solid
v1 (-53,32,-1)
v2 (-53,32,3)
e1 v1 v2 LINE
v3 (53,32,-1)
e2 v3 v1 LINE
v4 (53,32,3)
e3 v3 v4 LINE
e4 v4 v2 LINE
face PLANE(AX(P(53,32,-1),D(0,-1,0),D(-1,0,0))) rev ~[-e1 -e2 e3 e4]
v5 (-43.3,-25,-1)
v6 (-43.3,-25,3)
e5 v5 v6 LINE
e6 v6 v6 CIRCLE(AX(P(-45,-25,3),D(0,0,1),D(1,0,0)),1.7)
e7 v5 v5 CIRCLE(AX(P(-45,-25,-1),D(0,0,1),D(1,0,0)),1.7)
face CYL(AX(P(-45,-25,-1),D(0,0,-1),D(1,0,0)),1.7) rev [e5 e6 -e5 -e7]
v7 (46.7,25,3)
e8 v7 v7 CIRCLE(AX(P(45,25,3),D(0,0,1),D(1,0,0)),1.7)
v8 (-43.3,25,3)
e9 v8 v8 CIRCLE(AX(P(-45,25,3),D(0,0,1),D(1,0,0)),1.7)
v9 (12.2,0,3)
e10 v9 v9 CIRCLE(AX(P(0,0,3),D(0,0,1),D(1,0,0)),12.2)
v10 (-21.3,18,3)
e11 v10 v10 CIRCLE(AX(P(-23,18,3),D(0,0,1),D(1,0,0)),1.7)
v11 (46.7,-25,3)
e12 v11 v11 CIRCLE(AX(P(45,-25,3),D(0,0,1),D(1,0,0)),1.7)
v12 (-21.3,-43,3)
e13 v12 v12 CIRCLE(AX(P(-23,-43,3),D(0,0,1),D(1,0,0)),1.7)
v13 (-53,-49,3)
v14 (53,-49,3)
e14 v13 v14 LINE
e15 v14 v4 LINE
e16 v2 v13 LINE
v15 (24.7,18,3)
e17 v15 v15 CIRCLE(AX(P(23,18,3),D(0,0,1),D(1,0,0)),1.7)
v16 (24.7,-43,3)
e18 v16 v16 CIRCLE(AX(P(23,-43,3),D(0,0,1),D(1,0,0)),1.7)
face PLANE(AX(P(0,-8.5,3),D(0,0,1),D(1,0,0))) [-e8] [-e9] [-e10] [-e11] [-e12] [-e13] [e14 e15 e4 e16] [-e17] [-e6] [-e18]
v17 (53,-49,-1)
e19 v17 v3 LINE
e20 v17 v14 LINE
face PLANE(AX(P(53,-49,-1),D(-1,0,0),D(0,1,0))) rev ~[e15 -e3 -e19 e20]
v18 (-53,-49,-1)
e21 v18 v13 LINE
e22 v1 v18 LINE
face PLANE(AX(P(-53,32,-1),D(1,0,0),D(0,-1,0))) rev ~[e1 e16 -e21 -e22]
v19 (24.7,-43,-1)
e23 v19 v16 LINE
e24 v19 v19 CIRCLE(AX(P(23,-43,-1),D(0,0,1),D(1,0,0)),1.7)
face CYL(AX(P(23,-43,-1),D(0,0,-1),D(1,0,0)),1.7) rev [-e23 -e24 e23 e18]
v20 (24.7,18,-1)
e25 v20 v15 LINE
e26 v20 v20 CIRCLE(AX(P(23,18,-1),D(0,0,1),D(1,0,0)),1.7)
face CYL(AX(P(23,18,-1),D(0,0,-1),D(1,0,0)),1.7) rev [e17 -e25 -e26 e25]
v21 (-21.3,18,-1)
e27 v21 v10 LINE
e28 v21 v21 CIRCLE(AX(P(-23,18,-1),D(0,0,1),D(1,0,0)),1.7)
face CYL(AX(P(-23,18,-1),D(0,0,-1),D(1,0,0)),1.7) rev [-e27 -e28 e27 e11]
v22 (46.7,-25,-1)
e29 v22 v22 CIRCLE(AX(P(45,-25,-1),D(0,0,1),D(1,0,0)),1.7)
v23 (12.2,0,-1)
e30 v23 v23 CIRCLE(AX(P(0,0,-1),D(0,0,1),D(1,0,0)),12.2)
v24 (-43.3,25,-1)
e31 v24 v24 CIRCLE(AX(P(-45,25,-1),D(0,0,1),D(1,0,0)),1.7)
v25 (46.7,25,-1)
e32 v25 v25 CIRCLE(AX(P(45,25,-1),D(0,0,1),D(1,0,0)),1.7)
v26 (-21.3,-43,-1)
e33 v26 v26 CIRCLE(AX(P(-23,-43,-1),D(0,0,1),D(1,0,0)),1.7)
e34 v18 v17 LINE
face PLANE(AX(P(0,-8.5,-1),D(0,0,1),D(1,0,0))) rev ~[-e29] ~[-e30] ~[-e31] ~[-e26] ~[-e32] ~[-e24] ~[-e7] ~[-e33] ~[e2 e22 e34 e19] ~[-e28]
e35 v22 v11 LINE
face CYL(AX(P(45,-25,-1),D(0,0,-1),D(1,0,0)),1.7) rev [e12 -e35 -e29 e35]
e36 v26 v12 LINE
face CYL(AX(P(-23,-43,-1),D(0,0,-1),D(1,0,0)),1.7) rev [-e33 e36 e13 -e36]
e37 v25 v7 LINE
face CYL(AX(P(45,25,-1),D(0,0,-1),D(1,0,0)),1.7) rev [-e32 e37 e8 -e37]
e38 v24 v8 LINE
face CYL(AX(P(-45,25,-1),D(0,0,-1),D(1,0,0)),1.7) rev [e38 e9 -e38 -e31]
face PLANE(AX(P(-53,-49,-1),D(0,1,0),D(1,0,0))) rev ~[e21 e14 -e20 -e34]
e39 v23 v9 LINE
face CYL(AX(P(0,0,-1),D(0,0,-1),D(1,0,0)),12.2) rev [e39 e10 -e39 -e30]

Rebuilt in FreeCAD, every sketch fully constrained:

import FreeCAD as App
import Part
import Sketcher
from FreeCAD import Vector


def add_polygon(sketch, points):
    """Adds a closed chain of lines whose ends are joined by coincident constraints."""
    first, n = sketch.GeometryCount, len(points)
    for a, b in zip(points, points[1:] + points[:1]):
        sketch.addGeometry(Part.LineSegment(App.Vector(*a, 0), App.Vector(*b, 0)), False)
    for i in range(n):
        sketch.addConstraint(Sketcher.Constraint("Coincident", first + i, 2, first + (i + 1) % n, 1))

doc = App.newDocument("Part")
params = doc.addObject("Spreadsheet::Sheet", "Params")
for row, (alias, value) in enumerate([
    ("sketch1_diameter", "3.4 mm"),
    ("sketch1_diameter2", "24.4 mm"),
    ("sketch1_width", "106 mm"),
    ("sketch1_height", "81 mm"),
    ("pad1_length", "4 mm"),
], start=1):
    params.set(f"A{row}", alias)
    params.set(f"B{row}", "=" + value)
    params.setAlias(f"B{row}", alias)

body = doc.addObject("PartDesign::Body", "Body")

sketch1 = body.newObject("Sketcher::SketchObject", "Sketch")
sketch1.AttachmentSupport = (doc.getObject("XY_Plane"), [""])
sketch1.MapMode = "FlatFace"
sketch1.AttachmentOffset = App.Placement(Vector(0, 0, -1), App.Rotation())
add_polygon(sketch1, [(-53, 32), (-53, -49), (53, -49), (53, 32)])
sketch1.addGeometry(Part.Circle(Vector(-23, -43, 0), Vector(0, 0, 1), 1.7), False)
sketch1.addGeometry(Part.Circle(Vector(-45, -25, 0), Vector(0, 0, 1), 1.7), False)
sketch1.addGeometry(Part.Circle(Vector(23, -43, 0), Vector(0, 0, 1), 1.7), False)
sketch1.addGeometry(Part.Circle(Vector(45, -25, 0), Vector(0, 0, 1), 1.7), False)
sketch1.addGeometry(Part.Circle(Vector(-45, 25, 0), Vector(0, 0, 1), 1.7), False)
sketch1.addGeometry(Part.Circle(Vector(-23, 18, 0), Vector(0, 0, 1), 1.7), False)
sketch1.addGeometry(Part.Circle(Vector(0, 0, 0), Vector(0, 0, 1), 12.2), False)
sketch1.addGeometry(Part.Circle(Vector(23, 18, 0), Vector(0, 0, 1), 1.7), False)
sketch1.addGeometry(Part.Circle(Vector(45, 25, 0), Vector(0, 0, 1), 1.7), False)
sketch1.addConstraint([
    Sketcher.Constraint("Vertical", 0),
    Sketcher.Constraint("Horizontal", 1),
    Sketcher.Constraint("Vertical", 2),
    Sketcher.Constraint("Horizontal", 3),
    Sketcher.Constraint("Coincident", 10, 3, -1, 1),
    Sketcher.Constraint("Equal", 4, 5),
    Sketcher.Constraint("Equal", 5, 6),
    Sketcher.Constraint("Equal", 6, 7),
    Sketcher.Constraint("Equal", 7, 8),
    Sketcher.Constraint("Equal", 8, 9),
    Sketcher.Constraint("Equal", 9, 11),
    Sketcher.Constraint("Equal", 11, 12),
    Sketcher.Constraint("Symmetric", 7, 3, 8, 3, -1, 1),
    Sketcher.Constraint("Symmetric", 5, 3, 12, 3, -1, 1),
    Sketcher.Constraint("Symmetric", 4, 3, 6, 3, -2),
    Sketcher.Constraint("Symmetric", 5, 3, 7, 3, -2),
    Sketcher.Constraint("Symmetric", 9, 3, 11, 3, -2),
    Sketcher.Constraint("Vertical", 4, 3, 9, 3),
    Sketcher.Constraint("Diameter", 4, 3.4),
    Sketcher.Constraint("Diameter", 10, 24.4),
    Sketcher.Constraint("DistanceX", 1, 1, 1, 2, 106.0),
    Sketcher.Constraint("DistanceY", 0, 2, 0, 1, 81.0),
    Sketcher.Constraint("DistanceX", 4, 3, -1, 1, 23.0),
    Sketcher.Constraint("DistanceY", 4, 3, -1, 1, 43.0),
    Sketcher.Constraint("DistanceX", 5, 3, -1, 1, 45.0),
    Sketcher.Constraint("DistanceY", 5, 3, -1, 1, 25.0),
    Sketcher.Constraint("DistanceY", -1, 1, 9, 3, 18.0),
    Sketcher.Constraint("DistanceX", 0, 2, -1, 1, 53.0),
    Sketcher.Constraint("DistanceY", 0, 2, -1, 1, 49.0),
])
sketch1.setExpression("Constraints[22]", "Params.sketch1_diameter")
sketch1.setExpression("Constraints[23]", "Params.sketch1_diameter2")
sketch1.setExpression("Constraints[24]", "Params.sketch1_width")
sketch1.setExpression("Constraints[25]", "Params.sketch1_height")
pad1 = body.newObject("PartDesign::Pad", "Pad")
pad1.Profile = sketch1
pad1.setExpression("Length", "Params.pad1_length")

doc.recompute()
